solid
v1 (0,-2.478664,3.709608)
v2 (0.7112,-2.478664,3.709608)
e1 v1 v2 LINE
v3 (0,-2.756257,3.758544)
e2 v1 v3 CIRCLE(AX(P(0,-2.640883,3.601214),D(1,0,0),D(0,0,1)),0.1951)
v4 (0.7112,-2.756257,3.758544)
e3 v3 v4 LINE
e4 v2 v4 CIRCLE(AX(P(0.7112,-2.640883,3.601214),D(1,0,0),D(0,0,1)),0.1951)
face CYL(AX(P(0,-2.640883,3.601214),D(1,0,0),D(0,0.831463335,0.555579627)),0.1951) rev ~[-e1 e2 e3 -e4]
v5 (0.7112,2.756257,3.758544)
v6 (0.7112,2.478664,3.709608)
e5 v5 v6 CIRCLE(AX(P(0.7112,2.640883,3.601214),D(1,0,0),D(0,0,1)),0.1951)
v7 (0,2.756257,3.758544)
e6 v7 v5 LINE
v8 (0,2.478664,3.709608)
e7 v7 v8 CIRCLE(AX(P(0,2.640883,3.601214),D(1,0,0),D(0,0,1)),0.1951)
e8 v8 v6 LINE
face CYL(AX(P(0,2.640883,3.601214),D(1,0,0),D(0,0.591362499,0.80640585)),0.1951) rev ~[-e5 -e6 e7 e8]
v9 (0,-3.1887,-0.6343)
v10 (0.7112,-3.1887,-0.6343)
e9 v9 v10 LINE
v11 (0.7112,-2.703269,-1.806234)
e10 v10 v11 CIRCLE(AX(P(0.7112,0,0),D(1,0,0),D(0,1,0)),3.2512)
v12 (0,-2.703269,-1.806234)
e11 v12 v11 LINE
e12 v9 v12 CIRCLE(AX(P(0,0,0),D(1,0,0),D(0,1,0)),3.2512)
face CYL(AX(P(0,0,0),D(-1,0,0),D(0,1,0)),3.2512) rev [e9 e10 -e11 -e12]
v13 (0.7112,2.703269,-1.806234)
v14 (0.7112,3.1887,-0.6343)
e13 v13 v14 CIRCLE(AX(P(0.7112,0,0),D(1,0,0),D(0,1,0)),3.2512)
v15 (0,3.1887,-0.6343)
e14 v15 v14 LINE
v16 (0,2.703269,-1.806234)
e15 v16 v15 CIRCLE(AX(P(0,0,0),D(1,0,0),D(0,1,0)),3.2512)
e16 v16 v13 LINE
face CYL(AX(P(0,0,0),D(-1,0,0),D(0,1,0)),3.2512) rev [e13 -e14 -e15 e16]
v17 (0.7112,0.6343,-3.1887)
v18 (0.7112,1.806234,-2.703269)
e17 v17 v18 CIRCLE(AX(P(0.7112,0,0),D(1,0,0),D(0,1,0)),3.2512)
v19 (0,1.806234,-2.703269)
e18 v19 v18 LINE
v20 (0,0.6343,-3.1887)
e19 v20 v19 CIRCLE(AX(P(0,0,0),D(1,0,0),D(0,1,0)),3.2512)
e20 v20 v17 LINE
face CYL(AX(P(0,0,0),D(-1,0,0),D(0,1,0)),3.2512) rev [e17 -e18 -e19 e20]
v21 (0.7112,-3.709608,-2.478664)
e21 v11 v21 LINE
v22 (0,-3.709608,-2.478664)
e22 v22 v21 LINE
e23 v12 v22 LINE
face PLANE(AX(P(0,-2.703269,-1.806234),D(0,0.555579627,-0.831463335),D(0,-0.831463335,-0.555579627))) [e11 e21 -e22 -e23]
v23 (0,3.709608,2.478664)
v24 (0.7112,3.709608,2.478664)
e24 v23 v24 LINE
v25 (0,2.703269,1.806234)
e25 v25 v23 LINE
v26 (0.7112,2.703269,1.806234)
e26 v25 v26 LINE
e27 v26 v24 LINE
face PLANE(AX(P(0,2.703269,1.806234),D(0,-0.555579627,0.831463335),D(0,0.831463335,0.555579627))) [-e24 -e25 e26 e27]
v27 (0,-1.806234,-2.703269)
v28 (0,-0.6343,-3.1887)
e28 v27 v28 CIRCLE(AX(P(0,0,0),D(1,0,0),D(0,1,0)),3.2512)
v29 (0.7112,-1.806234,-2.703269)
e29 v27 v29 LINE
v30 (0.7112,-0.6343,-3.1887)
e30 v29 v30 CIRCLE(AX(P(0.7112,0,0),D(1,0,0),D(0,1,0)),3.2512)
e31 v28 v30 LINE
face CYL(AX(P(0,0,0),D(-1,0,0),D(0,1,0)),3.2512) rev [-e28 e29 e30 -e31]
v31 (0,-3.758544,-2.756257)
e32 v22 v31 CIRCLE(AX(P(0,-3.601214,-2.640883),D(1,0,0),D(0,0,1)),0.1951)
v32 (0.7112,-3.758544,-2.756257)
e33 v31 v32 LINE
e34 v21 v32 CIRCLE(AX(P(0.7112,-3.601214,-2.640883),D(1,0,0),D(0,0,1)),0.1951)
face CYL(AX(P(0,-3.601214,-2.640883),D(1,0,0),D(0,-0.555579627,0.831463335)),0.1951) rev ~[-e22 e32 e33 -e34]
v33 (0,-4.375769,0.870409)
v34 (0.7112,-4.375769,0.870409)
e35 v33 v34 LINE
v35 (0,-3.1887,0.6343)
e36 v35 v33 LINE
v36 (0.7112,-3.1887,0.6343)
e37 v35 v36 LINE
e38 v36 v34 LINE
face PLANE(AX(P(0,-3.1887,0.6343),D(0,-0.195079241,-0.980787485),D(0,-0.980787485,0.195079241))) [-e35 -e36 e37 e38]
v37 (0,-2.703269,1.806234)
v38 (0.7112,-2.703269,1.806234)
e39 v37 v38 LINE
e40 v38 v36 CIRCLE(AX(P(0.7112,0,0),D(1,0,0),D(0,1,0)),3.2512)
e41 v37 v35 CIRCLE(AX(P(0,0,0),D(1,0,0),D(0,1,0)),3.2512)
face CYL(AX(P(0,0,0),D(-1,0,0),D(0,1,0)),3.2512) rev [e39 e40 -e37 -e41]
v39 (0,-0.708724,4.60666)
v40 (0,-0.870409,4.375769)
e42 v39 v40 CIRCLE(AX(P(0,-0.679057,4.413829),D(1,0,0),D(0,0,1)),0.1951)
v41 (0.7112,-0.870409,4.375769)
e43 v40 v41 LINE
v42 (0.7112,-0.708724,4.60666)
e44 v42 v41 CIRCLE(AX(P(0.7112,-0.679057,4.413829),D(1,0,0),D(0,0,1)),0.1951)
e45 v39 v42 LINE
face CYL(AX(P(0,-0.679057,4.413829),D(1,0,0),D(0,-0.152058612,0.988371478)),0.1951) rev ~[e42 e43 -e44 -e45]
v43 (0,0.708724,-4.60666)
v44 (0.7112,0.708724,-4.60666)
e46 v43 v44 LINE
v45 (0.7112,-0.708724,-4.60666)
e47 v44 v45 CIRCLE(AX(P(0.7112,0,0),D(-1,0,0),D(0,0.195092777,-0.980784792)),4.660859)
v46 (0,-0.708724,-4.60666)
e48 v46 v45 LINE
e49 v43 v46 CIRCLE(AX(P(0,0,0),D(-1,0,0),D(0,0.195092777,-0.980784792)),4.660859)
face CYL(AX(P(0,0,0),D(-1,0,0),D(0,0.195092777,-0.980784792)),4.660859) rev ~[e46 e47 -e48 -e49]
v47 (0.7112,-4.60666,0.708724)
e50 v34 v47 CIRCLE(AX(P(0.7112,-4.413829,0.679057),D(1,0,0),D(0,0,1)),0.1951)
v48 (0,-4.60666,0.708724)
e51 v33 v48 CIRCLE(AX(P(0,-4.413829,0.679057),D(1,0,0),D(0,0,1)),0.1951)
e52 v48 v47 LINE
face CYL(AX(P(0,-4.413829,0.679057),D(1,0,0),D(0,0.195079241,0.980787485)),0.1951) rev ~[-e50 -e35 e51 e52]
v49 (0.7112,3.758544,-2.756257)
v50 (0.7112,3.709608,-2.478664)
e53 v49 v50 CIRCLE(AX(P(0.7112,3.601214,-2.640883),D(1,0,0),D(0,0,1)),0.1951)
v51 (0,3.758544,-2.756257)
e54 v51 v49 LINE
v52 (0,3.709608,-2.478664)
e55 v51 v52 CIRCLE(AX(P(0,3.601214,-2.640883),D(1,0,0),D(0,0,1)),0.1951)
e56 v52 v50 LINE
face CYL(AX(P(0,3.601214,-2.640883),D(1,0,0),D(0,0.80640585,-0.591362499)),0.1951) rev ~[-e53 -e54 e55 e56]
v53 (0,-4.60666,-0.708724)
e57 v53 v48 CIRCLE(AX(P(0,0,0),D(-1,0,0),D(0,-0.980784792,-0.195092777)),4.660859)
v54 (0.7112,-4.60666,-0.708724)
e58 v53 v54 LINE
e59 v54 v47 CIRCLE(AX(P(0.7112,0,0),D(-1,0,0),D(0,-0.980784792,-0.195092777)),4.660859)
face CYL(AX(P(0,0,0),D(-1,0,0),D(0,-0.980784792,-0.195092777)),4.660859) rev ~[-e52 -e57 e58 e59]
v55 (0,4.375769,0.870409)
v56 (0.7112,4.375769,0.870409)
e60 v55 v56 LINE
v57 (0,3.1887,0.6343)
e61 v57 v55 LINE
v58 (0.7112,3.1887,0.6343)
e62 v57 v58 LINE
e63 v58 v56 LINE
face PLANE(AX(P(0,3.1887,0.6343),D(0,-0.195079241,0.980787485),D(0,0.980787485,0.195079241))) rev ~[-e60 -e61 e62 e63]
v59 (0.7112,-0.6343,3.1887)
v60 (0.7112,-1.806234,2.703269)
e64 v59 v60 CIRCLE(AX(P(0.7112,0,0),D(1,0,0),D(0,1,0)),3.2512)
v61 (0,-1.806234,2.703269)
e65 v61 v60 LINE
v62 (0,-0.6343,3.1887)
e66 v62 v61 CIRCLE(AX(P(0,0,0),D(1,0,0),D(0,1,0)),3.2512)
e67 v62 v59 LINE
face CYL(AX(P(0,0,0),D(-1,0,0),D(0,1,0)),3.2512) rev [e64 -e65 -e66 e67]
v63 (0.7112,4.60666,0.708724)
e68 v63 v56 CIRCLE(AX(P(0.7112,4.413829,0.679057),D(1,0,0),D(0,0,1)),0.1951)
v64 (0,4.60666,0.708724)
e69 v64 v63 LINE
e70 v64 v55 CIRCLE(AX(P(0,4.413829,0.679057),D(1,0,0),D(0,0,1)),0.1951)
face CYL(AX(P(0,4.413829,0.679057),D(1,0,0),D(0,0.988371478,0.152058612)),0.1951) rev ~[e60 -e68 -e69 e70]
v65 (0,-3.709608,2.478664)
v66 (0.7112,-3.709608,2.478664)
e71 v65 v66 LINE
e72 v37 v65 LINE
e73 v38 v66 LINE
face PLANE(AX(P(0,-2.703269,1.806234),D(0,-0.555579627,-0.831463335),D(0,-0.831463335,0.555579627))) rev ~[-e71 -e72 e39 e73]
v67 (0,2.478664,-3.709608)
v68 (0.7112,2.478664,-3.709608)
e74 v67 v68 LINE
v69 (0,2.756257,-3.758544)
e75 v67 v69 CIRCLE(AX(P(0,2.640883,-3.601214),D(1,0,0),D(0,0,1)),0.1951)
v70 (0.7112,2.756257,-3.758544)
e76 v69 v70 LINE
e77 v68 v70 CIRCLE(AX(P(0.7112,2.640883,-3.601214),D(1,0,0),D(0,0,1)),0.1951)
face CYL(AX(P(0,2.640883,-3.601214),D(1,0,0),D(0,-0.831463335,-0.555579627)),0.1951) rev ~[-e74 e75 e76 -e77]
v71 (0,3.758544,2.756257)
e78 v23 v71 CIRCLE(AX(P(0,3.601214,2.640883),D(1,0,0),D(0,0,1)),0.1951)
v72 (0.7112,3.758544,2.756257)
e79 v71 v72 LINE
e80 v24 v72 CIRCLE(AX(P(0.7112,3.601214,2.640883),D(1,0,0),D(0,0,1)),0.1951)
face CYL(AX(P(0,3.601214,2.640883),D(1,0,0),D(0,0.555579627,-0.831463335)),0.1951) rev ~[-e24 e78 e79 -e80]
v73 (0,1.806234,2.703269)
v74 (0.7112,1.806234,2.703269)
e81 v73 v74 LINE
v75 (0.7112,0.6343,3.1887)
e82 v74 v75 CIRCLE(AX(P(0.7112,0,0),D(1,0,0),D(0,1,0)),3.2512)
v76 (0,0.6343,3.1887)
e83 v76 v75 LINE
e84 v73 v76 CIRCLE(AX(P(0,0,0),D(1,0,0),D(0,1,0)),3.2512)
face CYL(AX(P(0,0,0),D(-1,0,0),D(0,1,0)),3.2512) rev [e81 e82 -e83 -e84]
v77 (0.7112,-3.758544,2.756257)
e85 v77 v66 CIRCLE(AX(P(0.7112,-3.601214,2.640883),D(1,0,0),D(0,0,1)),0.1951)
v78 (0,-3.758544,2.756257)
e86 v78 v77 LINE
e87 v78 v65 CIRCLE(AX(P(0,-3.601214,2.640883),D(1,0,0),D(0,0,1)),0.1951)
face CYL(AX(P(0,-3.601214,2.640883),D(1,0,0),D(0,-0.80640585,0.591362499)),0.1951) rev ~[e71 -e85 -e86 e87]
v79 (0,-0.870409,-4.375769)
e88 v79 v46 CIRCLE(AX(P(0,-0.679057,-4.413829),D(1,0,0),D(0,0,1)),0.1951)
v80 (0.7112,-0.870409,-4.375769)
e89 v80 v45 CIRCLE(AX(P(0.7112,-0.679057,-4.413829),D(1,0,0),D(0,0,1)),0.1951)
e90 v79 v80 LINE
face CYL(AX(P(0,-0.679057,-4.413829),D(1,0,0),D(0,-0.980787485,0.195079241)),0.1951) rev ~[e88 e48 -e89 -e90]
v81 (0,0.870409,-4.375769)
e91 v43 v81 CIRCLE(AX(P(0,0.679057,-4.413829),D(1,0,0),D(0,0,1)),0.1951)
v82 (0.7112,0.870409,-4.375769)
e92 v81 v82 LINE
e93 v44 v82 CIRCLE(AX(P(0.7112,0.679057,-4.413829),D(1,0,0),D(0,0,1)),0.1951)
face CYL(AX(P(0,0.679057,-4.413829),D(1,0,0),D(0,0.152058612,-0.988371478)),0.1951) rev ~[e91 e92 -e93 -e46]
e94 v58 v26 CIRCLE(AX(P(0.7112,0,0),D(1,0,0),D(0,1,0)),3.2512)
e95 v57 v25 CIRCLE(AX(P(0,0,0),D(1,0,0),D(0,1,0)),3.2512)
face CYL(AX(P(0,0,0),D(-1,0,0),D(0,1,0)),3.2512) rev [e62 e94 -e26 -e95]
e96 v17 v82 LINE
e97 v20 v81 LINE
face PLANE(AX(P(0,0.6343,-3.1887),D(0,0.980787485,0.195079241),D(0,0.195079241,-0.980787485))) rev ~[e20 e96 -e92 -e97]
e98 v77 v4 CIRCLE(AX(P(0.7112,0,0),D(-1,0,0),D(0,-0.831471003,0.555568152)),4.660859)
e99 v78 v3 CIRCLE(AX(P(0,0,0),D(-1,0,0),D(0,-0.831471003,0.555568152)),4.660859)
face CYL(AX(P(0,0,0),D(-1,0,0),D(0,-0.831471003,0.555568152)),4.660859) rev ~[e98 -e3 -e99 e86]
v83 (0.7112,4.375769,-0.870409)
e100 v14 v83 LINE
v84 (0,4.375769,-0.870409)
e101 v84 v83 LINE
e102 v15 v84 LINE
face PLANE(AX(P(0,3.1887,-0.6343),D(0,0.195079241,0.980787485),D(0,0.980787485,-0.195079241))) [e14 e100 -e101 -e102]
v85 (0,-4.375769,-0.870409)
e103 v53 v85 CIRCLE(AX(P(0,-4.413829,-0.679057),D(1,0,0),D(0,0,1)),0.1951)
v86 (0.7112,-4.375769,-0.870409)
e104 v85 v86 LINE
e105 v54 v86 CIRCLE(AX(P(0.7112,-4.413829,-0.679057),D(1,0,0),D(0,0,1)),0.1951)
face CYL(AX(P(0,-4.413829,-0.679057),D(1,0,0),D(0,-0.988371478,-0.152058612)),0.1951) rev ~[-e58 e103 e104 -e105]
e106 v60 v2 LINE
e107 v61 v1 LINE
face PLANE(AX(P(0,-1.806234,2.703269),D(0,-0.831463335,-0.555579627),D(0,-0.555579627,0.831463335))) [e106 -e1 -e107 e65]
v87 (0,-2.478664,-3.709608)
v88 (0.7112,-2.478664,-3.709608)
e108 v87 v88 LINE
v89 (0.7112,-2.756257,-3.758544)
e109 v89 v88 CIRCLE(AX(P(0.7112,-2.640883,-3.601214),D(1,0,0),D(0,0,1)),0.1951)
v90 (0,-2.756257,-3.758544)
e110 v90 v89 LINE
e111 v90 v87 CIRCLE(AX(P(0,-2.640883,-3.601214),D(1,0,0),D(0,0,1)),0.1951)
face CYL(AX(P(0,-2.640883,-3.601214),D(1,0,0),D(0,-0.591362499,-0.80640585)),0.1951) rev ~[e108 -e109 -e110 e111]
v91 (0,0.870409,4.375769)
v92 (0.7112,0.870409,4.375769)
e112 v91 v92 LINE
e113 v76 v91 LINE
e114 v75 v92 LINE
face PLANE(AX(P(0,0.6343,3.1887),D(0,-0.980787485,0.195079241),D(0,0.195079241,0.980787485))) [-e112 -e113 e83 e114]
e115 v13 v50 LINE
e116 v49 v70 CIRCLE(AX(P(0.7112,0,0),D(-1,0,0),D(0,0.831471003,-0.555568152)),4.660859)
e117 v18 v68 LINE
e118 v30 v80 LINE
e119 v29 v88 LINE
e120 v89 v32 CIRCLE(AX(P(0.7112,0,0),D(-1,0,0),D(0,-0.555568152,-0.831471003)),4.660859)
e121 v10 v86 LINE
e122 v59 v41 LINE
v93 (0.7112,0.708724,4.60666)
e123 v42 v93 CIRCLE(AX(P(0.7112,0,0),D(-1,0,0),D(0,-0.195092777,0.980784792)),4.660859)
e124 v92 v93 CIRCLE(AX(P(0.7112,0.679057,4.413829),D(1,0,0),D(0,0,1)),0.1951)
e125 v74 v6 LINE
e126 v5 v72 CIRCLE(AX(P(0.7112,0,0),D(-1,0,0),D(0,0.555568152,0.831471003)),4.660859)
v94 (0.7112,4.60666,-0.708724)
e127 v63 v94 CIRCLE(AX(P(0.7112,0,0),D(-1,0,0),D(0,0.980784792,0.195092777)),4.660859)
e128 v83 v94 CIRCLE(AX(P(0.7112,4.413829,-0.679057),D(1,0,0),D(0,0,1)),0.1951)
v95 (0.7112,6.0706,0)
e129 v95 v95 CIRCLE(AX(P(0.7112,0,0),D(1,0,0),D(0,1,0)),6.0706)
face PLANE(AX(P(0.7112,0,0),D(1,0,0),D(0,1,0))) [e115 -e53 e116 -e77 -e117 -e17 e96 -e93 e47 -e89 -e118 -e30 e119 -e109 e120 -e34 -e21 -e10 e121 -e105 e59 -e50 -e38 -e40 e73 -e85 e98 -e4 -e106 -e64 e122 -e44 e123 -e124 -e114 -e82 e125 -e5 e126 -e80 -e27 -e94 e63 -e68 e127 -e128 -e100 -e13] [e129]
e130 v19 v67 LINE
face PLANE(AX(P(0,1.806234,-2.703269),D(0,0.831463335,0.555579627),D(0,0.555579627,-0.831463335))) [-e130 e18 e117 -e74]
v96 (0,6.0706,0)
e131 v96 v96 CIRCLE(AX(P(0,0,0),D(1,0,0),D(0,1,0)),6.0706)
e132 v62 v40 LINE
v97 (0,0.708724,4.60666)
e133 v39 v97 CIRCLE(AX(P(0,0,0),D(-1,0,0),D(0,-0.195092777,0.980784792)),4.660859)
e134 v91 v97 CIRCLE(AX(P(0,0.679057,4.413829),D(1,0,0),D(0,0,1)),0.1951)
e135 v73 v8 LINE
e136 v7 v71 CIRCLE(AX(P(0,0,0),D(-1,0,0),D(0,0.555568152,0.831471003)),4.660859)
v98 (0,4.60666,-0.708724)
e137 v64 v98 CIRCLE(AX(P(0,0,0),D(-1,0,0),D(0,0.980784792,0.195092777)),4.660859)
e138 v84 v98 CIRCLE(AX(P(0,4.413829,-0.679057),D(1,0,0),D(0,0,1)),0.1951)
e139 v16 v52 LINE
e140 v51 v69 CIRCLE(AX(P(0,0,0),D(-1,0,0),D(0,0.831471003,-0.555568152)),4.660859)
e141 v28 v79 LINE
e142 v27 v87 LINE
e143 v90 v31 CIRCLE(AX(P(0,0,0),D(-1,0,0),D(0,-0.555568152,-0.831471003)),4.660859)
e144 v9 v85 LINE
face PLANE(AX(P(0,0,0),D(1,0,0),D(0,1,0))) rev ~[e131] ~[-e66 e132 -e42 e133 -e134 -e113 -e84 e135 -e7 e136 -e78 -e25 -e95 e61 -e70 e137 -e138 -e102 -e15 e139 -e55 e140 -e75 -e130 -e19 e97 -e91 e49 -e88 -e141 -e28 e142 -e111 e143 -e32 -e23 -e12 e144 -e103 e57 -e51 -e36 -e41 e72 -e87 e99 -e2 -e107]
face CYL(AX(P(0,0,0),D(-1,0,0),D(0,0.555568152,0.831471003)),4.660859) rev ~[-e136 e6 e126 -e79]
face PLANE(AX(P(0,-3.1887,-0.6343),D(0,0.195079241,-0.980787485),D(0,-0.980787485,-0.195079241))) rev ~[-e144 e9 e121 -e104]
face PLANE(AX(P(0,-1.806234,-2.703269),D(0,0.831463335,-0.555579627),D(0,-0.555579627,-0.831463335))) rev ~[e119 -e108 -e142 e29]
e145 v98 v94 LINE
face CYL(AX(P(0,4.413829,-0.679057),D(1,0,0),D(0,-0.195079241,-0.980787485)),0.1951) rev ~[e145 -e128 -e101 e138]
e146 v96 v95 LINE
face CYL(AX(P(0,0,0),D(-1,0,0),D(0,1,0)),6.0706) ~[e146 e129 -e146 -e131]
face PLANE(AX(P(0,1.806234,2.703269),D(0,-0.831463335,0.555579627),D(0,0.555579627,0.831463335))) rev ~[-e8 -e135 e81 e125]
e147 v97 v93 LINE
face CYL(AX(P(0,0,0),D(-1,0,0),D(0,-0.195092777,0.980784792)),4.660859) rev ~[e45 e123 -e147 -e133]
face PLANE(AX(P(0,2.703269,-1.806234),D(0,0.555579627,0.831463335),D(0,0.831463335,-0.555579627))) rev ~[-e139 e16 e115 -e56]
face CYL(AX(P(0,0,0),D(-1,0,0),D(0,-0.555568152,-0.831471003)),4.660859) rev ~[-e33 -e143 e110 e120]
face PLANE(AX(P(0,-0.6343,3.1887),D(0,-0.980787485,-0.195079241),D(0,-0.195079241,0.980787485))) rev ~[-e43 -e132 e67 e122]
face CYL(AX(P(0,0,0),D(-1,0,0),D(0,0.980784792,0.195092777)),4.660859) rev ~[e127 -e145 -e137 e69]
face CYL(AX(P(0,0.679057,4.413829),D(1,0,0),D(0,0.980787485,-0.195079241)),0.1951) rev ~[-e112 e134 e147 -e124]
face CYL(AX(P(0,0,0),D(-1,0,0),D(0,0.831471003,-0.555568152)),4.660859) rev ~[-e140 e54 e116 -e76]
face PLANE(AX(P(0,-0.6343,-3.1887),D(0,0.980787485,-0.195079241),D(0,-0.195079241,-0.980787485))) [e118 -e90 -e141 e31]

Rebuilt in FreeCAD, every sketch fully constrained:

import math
import FreeCAD as App
import Part
import Sketcher
Q = App.Units.Quantity


def edges_at(feature, points):
    """Names of the edges that pass closest to the given points."""
    edges = feature.Shape.Edges
    near = lambda p: min(range(len(edges)), key=lambda i: edges[i].distToShape(Part.Vertex(*p))[0])
    return sorted({f"Edge{near(p) + 1}" for p in points})

doc = App.newDocument("Part")
body = doc.addObject("PartDesign::Body", "Body")

# Sketch on YZ plane
sketch1 = doc.addObject("Sketcher::SketchObject", "Sketch")
body.addObject(sketch1)
sketch1.AttachmentSupport = (doc.YZ_Plane, [""])
sketch1.MapMode = "FlatFace"
sketch1.addGeometry(Part.Circle(App.Vector(0, 0, 0), App.Vector(0, 0, 1), 6.0706), False)
sketch1.addGeometry(Part.Circle(App.Vector(0, 0, 0), App.Vector(0, 0, 1), 3.2512), False)
sketch1.addConstraint(Sketcher.Constraint("Coincident", 0, 3, -1, 1))
sketch1.addConstraint(Sketcher.Constraint("Coincident", 1, 3, -1, 1))
sketch1.addConstraint(Sketcher.Constraint("Diameter", 0, Q("0.478 in")))
sketch1.addConstraint(Sketcher.Constraint("Diameter", 1, Q("0.256 in")))
pad1 = doc.addObject("PartDesign::Pad", "Pad")
body.addObject(pad1)
pad1.Profile = sketch1
pad1.Length = Q("0.028 in")

# Sketch on YZ plane
sketch2 = doc.addObject("Sketcher::SketchObject", "Sketch001")
body.addObject(sketch2)
sketch2.AttachmentSupport = (doc.YZ_Plane, [""])
sketch2.MapMode = "FlatFace"
sketch2.addGeometry(Part.ArcOfCircle(Part.Circle(App.Vector(0, 0, 0), App.Vector(0, 0, 1), 3.2512), math.radians(-11.250486), math.radians(11.250486)), False)
sketch2.addGeometry(Part.LineSegment(App.Vector(3.1887, 0.6343, 0), App.Vector(4.5713, 0.9093, 0)), False)
sketch2.addGeometry(Part.ArcOfCircle(Part.Circle(App.Vector(0, 0, 0), App.Vector(0, 0, 1), 4.660859), math.radians(-11.250143), math.radians(11.250143)), False)
sketch2.addGeometry(Part.LineSegment(App.Vector(4.5713, -0.9093, 0), App.Vector(3.1887, -0.6343, 0)), False)
sketch2.addConstraint(Sketcher.Constraint("Coincident", 0, 2, 1, 1))
sketch2.addConstraint(Sketcher.Constraint("Coincident", 1, 2, 2, 2))
sketch2.addConstraint(Sketcher.Constraint("Coincident", 2, 1, 3, 1))
sketch2.addConstraint(Sketcher.Constraint("Coincident", 3, 2, 0, 1))
sketch2.addConstraint(Sketcher.Constraint("Coincident", 0, 3, -1, 1))
sketch2.addConstraint(Sketcher.Constraint("Coincident", 2, 3, -1, 1))
sketch2.addConstraint(Sketcher.Constraint("Vertical", 1, 2, 2, 1))
sketch2.addConstraint(Sketcher.Constraint("Vertical", 0, 2, 3, 2))
sketch2.addConstraint(Sketcher.Constraint("Radius", 2, Q("0.1835 in")))
sketch2.addConstraint(Sketcher.Constraint("Radius", 0, Q("0.128 in")))
sketch2.addConstraint(Sketcher.Constraint("Angle", 1, Q("11.2494 deg")))
sketch2.addConstraint(Sketcher.Constraint("DistanceY", -1, 1, 1, 2, Q("0.0358 in")))
pocket1 = doc.addObject("PartDesign::Pocket", "Pocket")
body.addObject(pocket1)
pocket1.Profile = sketch2
pocket1.Length = Q("0.028 in")
pocket1.Reversed = True
doc.recompute()

fillet = doc.addObject("PartDesign::Fillet", "Fillet")
body.addObject(fillet)
fillet.Base = (pocket1, edges_at(pocket1, [(0.356, 4.571, 0.909), (0.356, 4.571, -0.909)]))
fillet.Radius = 0.1951
doc.recompute()

polarpattern = doc.addObject("PartDesign::PolarPattern", "PolarPattern")
body.addObject(polarpattern)
polarpattern.Originals = [pocket1, fillet]
polarpattern.Axis = (doc.X_Axis, [""])
polarpattern.Angle = 360
polarpattern.Occurrences = 8
body.Tip = polarpattern

doc.recompute()
